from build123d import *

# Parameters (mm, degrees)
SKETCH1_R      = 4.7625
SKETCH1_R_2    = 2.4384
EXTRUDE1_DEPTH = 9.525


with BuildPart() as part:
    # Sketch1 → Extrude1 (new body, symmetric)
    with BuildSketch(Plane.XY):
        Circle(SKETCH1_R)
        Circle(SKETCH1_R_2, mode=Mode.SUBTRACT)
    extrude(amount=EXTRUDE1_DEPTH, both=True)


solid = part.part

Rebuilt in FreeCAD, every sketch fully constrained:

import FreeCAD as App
import Part
import Sketcher
Q = App.Units.Quantity

doc = App.newDocument("Part")
params = doc.addObject("Spreadsheet::Sheet", "Params")
for row, (alias, value) in enumerate([
    ("sketch1_diameter", "0.375 in"),
    ("sketch1_diameter2", "0.192 in"),
    ("pad1_length", "0.75 in"),
], start=1):
    params.set(f"A{row}", alias)
    params.set(f"B{row}", "=" + value)
    params.setAlias(f"B{row}", alias)

body = doc.addObject("PartDesign::Body", "Body")

# Sketch on XY plane
sketch1 = doc.addObject("Sketcher::SketchObject", "Sketch")
body.addObject(sketch1)
sketch1.AttachmentSupport = (doc.XY_Plane, [""])
sketch1.MapMode = "FlatFace"
sketch1.addGeometry(Part.Circle(App.Vector(0, 0, 0), App.Vector(0, 0, 1), 4.8), False)
sketch1.addGeometry(Part.Circle(App.Vector(0, 0, 0), App.Vector(0, 0, 1), 2.4), False)
sketch1.addConstraint(Sketcher.Constraint("Coincident", 0, 3, -1, 1))
sketch1.addConstraint(Sketcher.Constraint("Coincident", 1, 3, -1, 1))
sketch1.addConstraint(Sketcher.Constraint("Diameter", 0, Q("0.375 in")))
sketch1.addConstraint(Sketcher.Constraint("Diameter", 1, Q("0.192 in")))
sketch1.setExpression("Constraints[2]", "Params.sketch1_diameter")
sketch1.setExpression("Constraints[3]", "Params.sketch1_diameter2")
pad1 = doc.addObject("PartDesign::Pad", "Pad")
body.addObject(pad1)
pad1.Profile = sketch1
pad1.setExpression("Length", "Params.pad1_length")
pad1.Midplane = True

doc.recompute()
